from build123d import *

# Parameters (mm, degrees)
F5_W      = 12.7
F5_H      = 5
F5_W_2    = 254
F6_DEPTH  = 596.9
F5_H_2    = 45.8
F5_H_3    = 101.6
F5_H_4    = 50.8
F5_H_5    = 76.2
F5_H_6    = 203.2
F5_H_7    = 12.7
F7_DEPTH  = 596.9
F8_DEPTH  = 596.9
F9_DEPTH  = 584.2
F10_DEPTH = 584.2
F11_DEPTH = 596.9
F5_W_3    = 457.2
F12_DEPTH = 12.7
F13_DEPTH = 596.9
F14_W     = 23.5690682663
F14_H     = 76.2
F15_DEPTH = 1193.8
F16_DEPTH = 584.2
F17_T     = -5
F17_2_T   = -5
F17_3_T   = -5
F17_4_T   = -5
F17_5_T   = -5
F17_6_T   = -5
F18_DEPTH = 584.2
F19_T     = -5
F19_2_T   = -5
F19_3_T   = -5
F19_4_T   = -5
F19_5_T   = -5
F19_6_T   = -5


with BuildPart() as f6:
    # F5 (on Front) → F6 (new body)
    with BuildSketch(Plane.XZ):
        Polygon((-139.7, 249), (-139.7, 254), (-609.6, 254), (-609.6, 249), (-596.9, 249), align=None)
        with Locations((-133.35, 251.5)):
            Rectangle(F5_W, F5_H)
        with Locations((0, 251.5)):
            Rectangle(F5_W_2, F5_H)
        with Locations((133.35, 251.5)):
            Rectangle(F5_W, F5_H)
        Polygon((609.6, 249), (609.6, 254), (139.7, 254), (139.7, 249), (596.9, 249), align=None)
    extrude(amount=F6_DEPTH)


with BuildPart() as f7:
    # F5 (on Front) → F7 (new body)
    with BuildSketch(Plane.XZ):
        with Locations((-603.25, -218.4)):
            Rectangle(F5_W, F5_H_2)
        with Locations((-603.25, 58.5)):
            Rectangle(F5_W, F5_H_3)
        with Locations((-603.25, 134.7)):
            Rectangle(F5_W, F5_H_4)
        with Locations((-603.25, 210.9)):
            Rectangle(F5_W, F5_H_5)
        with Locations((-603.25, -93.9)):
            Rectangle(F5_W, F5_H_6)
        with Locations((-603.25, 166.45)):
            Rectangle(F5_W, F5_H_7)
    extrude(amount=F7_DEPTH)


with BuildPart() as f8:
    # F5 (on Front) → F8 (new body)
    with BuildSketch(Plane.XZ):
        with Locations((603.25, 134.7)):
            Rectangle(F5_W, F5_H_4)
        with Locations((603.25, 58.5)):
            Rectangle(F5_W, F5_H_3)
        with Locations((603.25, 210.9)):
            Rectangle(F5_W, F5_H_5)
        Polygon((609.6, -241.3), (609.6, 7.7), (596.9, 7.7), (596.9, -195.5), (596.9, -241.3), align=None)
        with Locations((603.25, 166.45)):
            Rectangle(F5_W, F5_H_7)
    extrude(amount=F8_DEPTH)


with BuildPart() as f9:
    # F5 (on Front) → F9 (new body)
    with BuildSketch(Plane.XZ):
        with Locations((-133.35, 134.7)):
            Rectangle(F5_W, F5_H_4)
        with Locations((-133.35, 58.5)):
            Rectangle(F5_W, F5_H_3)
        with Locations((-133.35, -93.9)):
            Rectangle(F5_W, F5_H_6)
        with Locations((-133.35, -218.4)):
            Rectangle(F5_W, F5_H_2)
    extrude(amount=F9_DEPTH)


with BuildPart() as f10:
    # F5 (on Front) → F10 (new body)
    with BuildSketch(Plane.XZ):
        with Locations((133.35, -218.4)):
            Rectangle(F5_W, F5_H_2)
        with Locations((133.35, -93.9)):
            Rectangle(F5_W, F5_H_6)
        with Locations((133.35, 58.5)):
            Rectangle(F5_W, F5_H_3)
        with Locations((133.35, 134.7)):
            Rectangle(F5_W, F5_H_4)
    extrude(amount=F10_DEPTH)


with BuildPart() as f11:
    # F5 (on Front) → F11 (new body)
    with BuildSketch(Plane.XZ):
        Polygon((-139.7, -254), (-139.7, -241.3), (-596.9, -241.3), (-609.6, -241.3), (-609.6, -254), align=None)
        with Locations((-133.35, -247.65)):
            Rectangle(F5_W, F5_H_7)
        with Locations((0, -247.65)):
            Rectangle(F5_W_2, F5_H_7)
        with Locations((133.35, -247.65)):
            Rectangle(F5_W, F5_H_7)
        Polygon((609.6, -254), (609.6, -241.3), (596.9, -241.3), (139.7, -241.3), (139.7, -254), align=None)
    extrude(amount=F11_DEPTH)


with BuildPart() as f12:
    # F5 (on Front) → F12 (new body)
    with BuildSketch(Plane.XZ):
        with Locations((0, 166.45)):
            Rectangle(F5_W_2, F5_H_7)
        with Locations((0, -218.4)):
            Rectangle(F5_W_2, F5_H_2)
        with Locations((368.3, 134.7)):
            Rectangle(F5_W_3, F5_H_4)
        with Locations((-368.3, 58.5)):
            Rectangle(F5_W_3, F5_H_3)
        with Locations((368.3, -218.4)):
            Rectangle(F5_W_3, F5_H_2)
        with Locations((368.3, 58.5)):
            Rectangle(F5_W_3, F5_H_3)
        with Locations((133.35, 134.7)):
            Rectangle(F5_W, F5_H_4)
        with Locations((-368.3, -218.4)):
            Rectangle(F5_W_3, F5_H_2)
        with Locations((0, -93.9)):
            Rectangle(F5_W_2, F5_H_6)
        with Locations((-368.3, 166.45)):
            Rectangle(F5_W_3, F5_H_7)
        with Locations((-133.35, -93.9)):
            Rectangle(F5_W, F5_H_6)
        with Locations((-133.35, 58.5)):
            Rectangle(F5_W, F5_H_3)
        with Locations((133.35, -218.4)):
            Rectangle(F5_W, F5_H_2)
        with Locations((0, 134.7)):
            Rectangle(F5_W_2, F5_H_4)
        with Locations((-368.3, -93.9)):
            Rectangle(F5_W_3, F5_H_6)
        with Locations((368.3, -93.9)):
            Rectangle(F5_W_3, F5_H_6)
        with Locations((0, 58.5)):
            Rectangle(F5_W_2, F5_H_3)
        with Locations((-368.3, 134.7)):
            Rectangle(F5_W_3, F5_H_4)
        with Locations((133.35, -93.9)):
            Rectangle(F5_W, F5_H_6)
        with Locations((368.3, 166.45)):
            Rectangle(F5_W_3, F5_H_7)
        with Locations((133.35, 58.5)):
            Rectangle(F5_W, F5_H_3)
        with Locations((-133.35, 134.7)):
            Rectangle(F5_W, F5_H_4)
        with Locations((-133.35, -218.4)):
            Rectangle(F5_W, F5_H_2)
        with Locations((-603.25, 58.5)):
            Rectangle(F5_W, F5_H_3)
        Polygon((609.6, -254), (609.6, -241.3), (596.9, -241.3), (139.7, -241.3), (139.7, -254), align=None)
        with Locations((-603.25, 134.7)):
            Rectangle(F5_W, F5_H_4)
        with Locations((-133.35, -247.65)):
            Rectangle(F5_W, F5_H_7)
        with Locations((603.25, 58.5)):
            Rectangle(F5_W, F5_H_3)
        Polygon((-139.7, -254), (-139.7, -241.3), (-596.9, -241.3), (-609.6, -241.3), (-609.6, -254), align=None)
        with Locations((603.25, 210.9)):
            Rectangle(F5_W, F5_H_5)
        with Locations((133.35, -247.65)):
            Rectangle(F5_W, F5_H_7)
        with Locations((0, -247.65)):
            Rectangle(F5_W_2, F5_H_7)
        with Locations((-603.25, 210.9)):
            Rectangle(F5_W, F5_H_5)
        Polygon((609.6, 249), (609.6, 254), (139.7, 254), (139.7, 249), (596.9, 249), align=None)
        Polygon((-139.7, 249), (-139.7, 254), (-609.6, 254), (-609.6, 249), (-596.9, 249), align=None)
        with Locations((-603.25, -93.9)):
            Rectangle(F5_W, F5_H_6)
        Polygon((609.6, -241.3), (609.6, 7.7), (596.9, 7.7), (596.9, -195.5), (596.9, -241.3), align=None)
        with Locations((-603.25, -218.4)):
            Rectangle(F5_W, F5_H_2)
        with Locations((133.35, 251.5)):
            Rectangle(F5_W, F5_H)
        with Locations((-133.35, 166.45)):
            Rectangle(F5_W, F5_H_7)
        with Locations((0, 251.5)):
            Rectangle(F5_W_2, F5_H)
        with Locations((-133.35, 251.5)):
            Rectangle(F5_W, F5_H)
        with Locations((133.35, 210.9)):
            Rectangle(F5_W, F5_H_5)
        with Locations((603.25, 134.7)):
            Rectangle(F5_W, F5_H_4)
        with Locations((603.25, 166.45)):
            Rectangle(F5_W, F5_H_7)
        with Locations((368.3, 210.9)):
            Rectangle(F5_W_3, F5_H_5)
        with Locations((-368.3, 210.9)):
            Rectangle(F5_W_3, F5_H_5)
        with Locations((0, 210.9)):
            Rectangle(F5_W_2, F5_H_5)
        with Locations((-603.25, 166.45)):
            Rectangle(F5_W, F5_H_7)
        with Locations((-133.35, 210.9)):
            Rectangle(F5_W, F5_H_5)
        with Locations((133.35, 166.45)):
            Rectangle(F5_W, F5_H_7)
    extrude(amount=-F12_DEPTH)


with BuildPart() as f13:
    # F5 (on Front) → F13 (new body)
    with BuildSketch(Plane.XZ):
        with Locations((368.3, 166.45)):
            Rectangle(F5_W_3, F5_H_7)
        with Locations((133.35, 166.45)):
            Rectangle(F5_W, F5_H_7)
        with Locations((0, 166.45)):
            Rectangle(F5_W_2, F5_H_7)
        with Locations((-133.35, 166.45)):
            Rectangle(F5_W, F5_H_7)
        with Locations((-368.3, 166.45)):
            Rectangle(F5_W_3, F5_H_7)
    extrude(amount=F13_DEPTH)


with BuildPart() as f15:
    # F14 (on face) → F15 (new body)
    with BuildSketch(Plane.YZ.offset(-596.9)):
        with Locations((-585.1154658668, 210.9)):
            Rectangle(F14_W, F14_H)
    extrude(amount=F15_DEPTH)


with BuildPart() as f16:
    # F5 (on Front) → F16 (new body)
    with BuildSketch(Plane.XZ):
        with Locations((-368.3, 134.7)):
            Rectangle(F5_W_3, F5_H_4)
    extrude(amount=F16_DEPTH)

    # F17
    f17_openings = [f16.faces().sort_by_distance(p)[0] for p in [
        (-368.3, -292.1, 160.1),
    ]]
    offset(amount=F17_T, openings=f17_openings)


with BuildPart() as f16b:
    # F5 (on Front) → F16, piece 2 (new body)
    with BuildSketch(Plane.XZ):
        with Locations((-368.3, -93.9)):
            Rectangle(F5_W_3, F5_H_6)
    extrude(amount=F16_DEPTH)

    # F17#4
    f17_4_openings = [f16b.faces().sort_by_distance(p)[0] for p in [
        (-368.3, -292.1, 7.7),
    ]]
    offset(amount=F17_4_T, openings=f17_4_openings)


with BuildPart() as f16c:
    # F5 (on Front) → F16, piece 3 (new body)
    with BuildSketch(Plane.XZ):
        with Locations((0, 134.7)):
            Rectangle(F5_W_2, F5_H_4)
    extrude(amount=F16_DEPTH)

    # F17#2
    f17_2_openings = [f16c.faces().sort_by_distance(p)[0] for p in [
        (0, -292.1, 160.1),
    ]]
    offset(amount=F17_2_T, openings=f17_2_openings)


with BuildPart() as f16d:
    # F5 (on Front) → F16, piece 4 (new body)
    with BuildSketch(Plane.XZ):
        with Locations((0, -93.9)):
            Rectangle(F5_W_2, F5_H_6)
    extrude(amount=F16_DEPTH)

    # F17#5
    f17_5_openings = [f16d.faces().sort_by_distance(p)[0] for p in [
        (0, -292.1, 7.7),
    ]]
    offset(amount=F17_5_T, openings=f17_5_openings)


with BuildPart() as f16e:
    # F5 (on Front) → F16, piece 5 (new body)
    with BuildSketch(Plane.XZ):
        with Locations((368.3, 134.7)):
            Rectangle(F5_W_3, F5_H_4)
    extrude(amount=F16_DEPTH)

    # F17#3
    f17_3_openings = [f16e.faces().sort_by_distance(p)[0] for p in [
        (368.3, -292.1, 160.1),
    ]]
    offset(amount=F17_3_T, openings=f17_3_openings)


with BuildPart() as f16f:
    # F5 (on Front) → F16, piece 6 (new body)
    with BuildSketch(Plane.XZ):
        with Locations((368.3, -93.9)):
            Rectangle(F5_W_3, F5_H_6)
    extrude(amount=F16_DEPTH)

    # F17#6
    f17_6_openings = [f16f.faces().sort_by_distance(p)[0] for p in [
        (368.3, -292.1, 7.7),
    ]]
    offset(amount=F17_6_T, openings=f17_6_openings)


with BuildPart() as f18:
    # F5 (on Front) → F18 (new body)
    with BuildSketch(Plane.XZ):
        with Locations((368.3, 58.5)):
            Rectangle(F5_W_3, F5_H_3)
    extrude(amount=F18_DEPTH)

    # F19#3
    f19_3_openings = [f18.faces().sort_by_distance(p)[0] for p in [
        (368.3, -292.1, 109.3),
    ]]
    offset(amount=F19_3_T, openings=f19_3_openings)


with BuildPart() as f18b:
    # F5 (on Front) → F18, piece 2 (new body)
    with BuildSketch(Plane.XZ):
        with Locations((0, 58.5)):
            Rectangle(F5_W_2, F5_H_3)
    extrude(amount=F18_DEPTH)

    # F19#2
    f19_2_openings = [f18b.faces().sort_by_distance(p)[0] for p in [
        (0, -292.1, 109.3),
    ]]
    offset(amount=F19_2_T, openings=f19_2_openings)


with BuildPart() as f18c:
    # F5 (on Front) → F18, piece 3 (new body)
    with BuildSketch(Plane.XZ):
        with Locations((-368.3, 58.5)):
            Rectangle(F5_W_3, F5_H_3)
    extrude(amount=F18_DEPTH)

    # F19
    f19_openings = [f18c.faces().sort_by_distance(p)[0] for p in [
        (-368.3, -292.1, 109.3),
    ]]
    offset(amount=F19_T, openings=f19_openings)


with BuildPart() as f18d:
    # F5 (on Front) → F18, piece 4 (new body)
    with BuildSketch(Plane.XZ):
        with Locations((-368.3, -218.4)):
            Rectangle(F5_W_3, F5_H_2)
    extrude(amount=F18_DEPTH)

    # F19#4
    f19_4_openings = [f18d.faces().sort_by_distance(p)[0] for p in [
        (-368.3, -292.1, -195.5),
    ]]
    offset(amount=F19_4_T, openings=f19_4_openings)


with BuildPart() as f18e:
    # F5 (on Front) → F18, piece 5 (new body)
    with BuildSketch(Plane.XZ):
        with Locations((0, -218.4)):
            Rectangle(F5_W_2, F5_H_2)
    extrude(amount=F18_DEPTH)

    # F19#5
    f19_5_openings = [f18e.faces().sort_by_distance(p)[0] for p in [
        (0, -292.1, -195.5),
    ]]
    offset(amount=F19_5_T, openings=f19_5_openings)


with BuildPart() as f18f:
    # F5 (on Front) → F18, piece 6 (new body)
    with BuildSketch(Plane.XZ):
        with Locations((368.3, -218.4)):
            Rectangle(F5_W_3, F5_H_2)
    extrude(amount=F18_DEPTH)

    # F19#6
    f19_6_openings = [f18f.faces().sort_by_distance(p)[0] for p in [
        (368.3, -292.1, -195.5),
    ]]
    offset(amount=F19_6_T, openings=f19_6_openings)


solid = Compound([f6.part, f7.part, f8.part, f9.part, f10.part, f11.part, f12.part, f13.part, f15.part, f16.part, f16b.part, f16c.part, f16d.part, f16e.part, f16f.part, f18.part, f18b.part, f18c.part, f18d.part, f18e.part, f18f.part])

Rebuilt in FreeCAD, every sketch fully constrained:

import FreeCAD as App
import Part
import Sketcher
from FreeCAD import Vector
Q = App.Units.Quantity


def faces_at(feature, points):
    """Names of the faces that lie closest to the given points."""
    faces = feature.Shape.Faces
    near = lambda p: min(range(len(faces)), key=lambda i: faces[i].distToShape(Part.Vertex(*p))[0])
    return sorted({f"Face{near(p) + 1}" for p in points})


def add_polygon(sketch, points):
    """Adds a closed chain of lines whose ends are joined by coincident constraints."""
    first, n = sketch.GeometryCount, len(points)
    for a, b in zip(points, points[1:] + points[:1]):
        sketch.addGeometry(Part.LineSegment(App.Vector(*a, 0), App.Vector(*b, 0)), False)
    for i in range(n):
        sketch.addConstraint(Sketcher.Constraint("Coincident", first + i, 2, first + (i + 1) % n, 1))

doc = App.newDocument("Part")
body = doc.addObject("PartDesign::Body", "Body")

sketch1 = body.newObject("Sketcher::SketchObject", "Sketch")
sketch1.AttachmentSupport = (doc.getObject("XZ_Plane"), [""])
sketch1.MapMode = "FlatFace"
add_polygon(sketch1, [(-610, 254), (-610, 249), (610, 249), (610, 254)])
sketch1.addConstraint([
    Sketcher.Constraint("Vertical", 0),
    Sketcher.Constraint("Horizontal", 1),
    Sketcher.Constraint("Vertical", 2),
    Sketcher.Constraint("Horizontal", 3),
    Sketcher.Constraint("DistanceX", 1, 1, 1, 2, Q("48 in")),
    Sketcher.Constraint("DistanceX", 0, 2, -1, 1, Q("24 in")),
    Sketcher.Constraint("DistanceY", -1, 1, 2, 2, Q("10 in")),
    Sketcher.Constraint("DistanceY", 0, 2, 0, 1, 5.0),
])
pad1 = body.newObject("PartDesign::Pad", "Pad")
pad1.Profile = sketch1
pad1.Length = Q("23.5 in")
body2 = doc.addObject("PartDesign::Body", "Body001")

sketch2 = body2.newObject("Sketcher::SketchObject", "Sketch001")
sketch2.AttachmentSupport = (doc.getObject("XZ_Plane001"), [""])
sketch2.MapMode = "FlatFace"
add_polygon(sketch2, [(-610, -241), (-597, -241), (-597, 249), (-610, 249)])
sketch2.addConstraint([
    Sketcher.Constraint("Horizontal", 0),
    Sketcher.Constraint("Vertical", 1),
    Sketcher.Constraint("Horizontal", 2),
    Sketcher.Constraint("Vertical", 3),
    Sketcher.Constraint("DistanceX", 0, 1, 0, 2, Q("0.5 in")),
    Sketcher.Constraint("DistanceX", 2, 2, -1, 1, Q("24 in")),
    Sketcher.Constraint("DistanceY", 0, 2, -1, 1, Q("9.5 in")),
    Sketcher.Constraint("DistanceY", 1, 1, 1, 2, 490.3),
])
pad2 = body2.newObject("PartDesign::Pad", "Pad001")
pad2.Profile = sketch2
pad2.Length = Q("23.5 in")
body3 = doc.addObject("PartDesign::Body", "Body002")

sketch3 = body3.newObject("Sketcher::SketchObject", "Sketch002")
sketch3.AttachmentSupport = (doc.getObject("XZ_Plane002"), [""])
sketch3.MapMode = "FlatFace"
add_polygon(sketch3, [(597, -241), (610, -241), (610, 249), (597, 249)])
sketch3.addConstraint([
    Sketcher.Constraint("Horizontal", 0),
    Sketcher.Constraint("Vertical", 1),
    Sketcher.Constraint("Horizontal", 2),
    Sketcher.Constraint("Vertical", 3),
    Sketcher.Constraint("DistanceX", 0, 1, 0, 2, Q("0.5 in")),
    Sketcher.Constraint("DistanceX", -1, 1, 0, 2, Q("24 in")),
    Sketcher.Constraint("DistanceY", 0, 2, -1, 1, Q("9.5 in")),
    Sketcher.Constraint("DistanceY", 1, 1, 1, 2, 490.3),
])
pad3 = body3.newObject("PartDesign::Pad", "Pad002")
pad3.Profile = sketch3
pad3.Length = Q("23.5 in")
body4 = doc.addObject("PartDesign::Body", "Body003")

sketch4 = body4.newObject("Sketcher::SketchObject", "Sketch003")
sketch4.AttachmentSupport = (doc.getObject("XZ_Plane003"), [""])
sketch4.MapMode = "FlatFace"
add_polygon(sketch4, [(-140, 160), (-140, -241), (-127, -241), (-127, 160)])
sketch4.addConstraint([
    Sketcher.Constraint("Vertical", 0),
    Sketcher.Constraint("Horizontal", 1),
    Sketcher.Constraint("Vertical", 2),
    Sketcher.Constraint("Horizontal", 3),
    Sketcher.Constraint("DistanceX", 1, 1, 1, 2, Q("0.5 in")),
    Sketcher.Constraint("DistanceX", 1, 2, -1, 1, Q("5 in")),
    Sketcher.Constraint("DistanceY", 0, 2, -1, 1, Q("9.5 in")),
    Sketcher.Constraint("DistanceY", 0, 2, 0, 1, 401.4),
])
pad4 = body4.newObject("PartDesign::Pad", "Pad003")
pad4.Profile = sketch4
pad4.Length = Q("23 in")
body5 = doc.addObject("PartDesign::Body", "Body004")

sketch5 = body5.newObject("Sketcher::SketchObject", "Sketch004")
sketch5.AttachmentSupport = (doc.getObject("XZ_Plane004"), [""])
sketch5.MapMode = "FlatFace"
add_polygon(sketch5, [(127, -241), (140, -241), (140, 160), (127, 160)])
sketch5.addConstraint([
    Sketcher.Constraint("Horizontal", 0),
    Sketcher.Constraint("Vertical", 1),
    Sketcher.Constraint("Horizontal", 2),
    Sketcher.Constraint("Vertical", 3),
    Sketcher.Constraint("DistanceX", 0, 1, 0, 2, Q("0.5 in")),
    Sketcher.Constraint("DistanceX", -1, 1, 2, 2, Q("5 in")),
    Sketcher.Constraint("DistanceY", 0, 2, -1, 1, Q("9.5 in")),
    Sketcher.Constraint("DistanceY", 1, 1, 1, 2, 401.4),
])
pad5 = body5.newObject("PartDesign::Pad", "Pad004")
pad5.Profile = sketch5
pad5.Length = Q("23 in")
body6 = doc.addObject("PartDesign::Body", "Body005")

sketch6 = body6.newObject("Sketcher::SketchObject", "Sketch005")
sketch6.AttachmentSupport = (doc.getObject("XZ_Plane005"), [""])
sketch6.MapMode = "FlatFace"
add_polygon(sketch6, [(-610, -241), (-610, -254), (610, -254), (610, -241)])
sketch6.addConstraint([
    Sketcher.Constraint("Vertical", 0),
    Sketcher.Constraint("Horizontal", 1),
    Sketcher.Constraint("Vertical", 2),
    Sketcher.Constraint("Horizontal", 3),
    Sketcher.Constraint("DistanceX", 1, 1, 1, 2, Q("48 in")),
    Sketcher.Constraint("DistanceY", 0, 2, 0, 1, Q("0.5 in")),
    Sketcher.Constraint("DistanceX", 0, 2, -1, 1, Q("24 in")),
    Sketcher.Constraint("DistanceY", 0, 2, -1, 1, Q("10 in")),
])
pad6 = body6.newObject("PartDesign::Pad", "Pad005")
pad6.Profile = sketch6
pad6.Length = Q("23.5 in")
body7 = doc.addObject("PartDesign::Body", "Body006")

sketch7 = body7.newObject("Sketcher::SketchObject", "Sketch006")
sketch7.AttachmentSupport = (doc.getObject("XZ_Plane006"), [""])
sketch7.MapMode = "FlatFace"
add_polygon(sketch7, [(-610, -254), (610, -254), (610, 254), (-610, 254)])
sketch7.addConstraint([
    Sketcher.Constraint("Horizontal", 0),
    Sketcher.Constraint("Vertical", 1),
    Sketcher.Constraint("Horizontal", 2),
    Sketcher.Constraint("Vertical", 3),
    Sketcher.Constraint("Symmetric", 0, 2, 2, 2, -1, 1),
    Sketcher.Constraint("DistanceX", 0, 1, 0, 2, Q("48 in")),
    Sketcher.Constraint("DistanceY", 1, 1, 1, 2, Q("20 in")),
])
pad7 = body7.newObject("PartDesign::Pad", "Pad006")
pad7.Profile = sketch7
pad7.Length = Q("0.5 in")
pad7.Reversed = True
body8 = doc.addObject("PartDesign::Body", "Body007")

sketch8 = body8.newObject("Sketcher::SketchObject", "Sketch007")
sketch8.AttachmentSupport = (doc.getObject("XZ_Plane007"), [""])
sketch8.MapMode = "FlatFace"
add_polygon(sketch8, [(597, 160), (597, 173), (-597, 173), (-597, 160)])
sketch8.addConstraint([
    Sketcher.Constraint("Vertical", 0),
    Sketcher.Constraint("Horizontal", 1),
    Sketcher.Constraint("Vertical", 2),
    Sketcher.Constraint("Horizontal", 3),
    Sketcher.Constraint("DistanceX", 1, 2, 1, 1, Q("47 in")),
    Sketcher.Constraint("DistanceY", 0, 1, 0, 2, Q("0.5 in")),
    Sketcher.Constraint("DistanceX", -1, 1, 0, 2, Q("23.5 in")),
    Sketcher.Constraint("DistanceY", -1, 1, 0, 2, 172.8),
])
pad8 = body8.newObject("PartDesign::Pad", "Pad007")
pad8.Profile = sketch8
pad8.Length = Q("23.5 in")
body9 = doc.addObject("PartDesign::Body", "Body008")

sketch9 = body9.newObject("Sketcher::SketchObject", "Sketch008")
sketch9.AttachmentSupport = (doc.getObject("YZ_Plane008"), [""])
sketch9.MapMode = "FlatFace"
sketch9.AttachmentOffset = App.Placement(Vector(0, 0, -23.5 * 25.4), App.Rotation())
add_polygon(sketch9, [(-597, 249), (-597, 173), (-573, 173), (-573, 249)])
sketch9.addConstraint([
    Sketcher.Constraint("Vertical", 0),
    Sketcher.Constraint("Horizontal", 1),
    Sketcher.Constraint("Vertical", 2),
    Sketcher.Constraint("Horizontal", 3),
    Sketcher.Constraint("DistanceY", 0, 2, 0, 1, Q("3 in")),
    Sketcher.Constraint("DistanceX", 0, 2, -1, 1, Q("23.5 in")),
    Sketcher.Constraint("DistanceX", 1, 1, 1, 2, 23.569068),
    Sketcher.Constraint("DistanceY", -1, 1, 0, 2, 172.8),
])
pad9 = body9.newObject("PartDesign::Pad", "Pad008")
pad9.Profile = sketch9
pad9.Length = Q("47 in")
body10 = doc.addObject("PartDesign::Body", "Body009")

sketch10 = body10.newObject("Sketcher::SketchObject", "Sketch009")
sketch10.AttachmentSupport = (doc.getObject("XZ_Plane009"), [""])
sketch10.MapMode = "FlatFace"
add_polygon(sketch10, [(-597, 160), (-597, 109), (-140, 109), (-140, 160)])
sketch10.addConstraint([
    Sketcher.Constraint("Vertical", 0),
    Sketcher.Constraint("Horizontal", 1),
    Sketcher.Constraint("Vertical", 2),
    Sketcher.Constraint("Horizontal", 3),
    Sketcher.Constraint("DistanceX", 1, 1, 1, 2, Q("18 in")),
    Sketcher.Constraint("DistanceY", 0, 2, 0, 1, Q("2 in")),
    Sketcher.Constraint("DistanceX", 0, 2, -1, 1, Q("23.5 in")),
    Sketcher.Constraint("DistanceY", -1, 1, 0, 2, 109.3),
])
pad10 = body10.newObject("PartDesign::Pad", "Pad009")
pad10.Profile = sketch10
pad10.Length = Q("23 in")
doc.recompute()

thickness = body10.newObject("PartDesign::Thickness", "Thickness")
thickness.Base = (pad10, faces_at(pad10, [(-368.3, -292.1, 160.1)]))
thickness.Value = 5
thickness.Reversed = True
thickness.Join = "Arc"
body11 = doc.addObject("PartDesign::Body", "Body010")

sketch11 = body11.newObject("Sketcher::SketchObject", "Sketch010")
sketch11.AttachmentSupport = (doc.getObject("XZ_Plane010"), [""])
sketch11.MapMode = "FlatFace"
add_polygon(sketch11, [(-597, 8), (-597, -196), (-140, -196), (-140, 8)])
sketch11.addConstraint([
    Sketcher.Constraint("Vertical", 0),
    Sketcher.Constraint("Horizontal", 1),
    Sketcher.Constraint("Vertical", 2),
    Sketcher.Constraint("Horizontal", 3),
    Sketcher.Constraint("DistanceX", 1, 1, 1, 2, Q("18 in")),
    Sketcher.Constraint("DistanceY", 0, 2, 0, 1, Q("8 in")),
    Sketcher.Constraint("DistanceX", 0, 2, -1, 1, Q("23.5 in")),
    Sketcher.Constraint("DistanceY", 0, 2, -1, 1, 195.5),
])
pad11 = body11.newObject("PartDesign::Pad", "Pad010")
pad11.Profile = sketch11
pad11.Length = Q("23 in")
doc.recompute()

thickness2 = body11.newObject("PartDesign::Thickness", "Thickness001")
thickness2.Base = (pad11, faces_at(pad11, [(-368.3, -292.1, 7.7)]))
thickness2.Value = 5
thickness2.Reversed = True
thickness2.Join = "Arc"
body12 = doc.addObject("PartDesign::Body", "Body011")

sketch12 = body12.newObject("Sketcher::SketchObject", "Sketch011")
sketch12.AttachmentSupport = (doc.getObject("XZ_Plane011"), [""])
sketch12.MapMode = "FlatFace"
add_polygon(sketch12, [(-127, 160), (-127, 109), (127, 109), (127, 160)])
sketch12.addConstraint([
    Sketcher.Constraint("Vertical", 0),
    Sketcher.Constraint("Horizontal", 1),
    Sketcher.Constraint("Vertical", 2),
    Sketcher.Constraint("Horizontal", 3),
    Sketcher.Constraint("DistanceX", 1, 1, 1, 2, Q("10 in")),
    Sketcher.Constraint("DistanceY", 0, 2, 0, 1, Q("2 in")),
    Sketcher.Constraint("DistanceX", 0, 2, -1, 1, Q("5 in")),
    Sketcher.Constraint("DistanceY", -1, 1, 0, 2, 109.3),
])
pad12 = body12.newObject("PartDesign::Pad", "Pad011")
pad12.Profile = sketch12
pad12.Length = Q("23 in")
doc.recompute()

thickness3 = body12.newObject("PartDesign::Thickness", "Thickness002")
thickness3.Base = (pad12, faces_at(pad12, [(0, -292.1, 160.1)]))
thickness3.Value = 5
thickness3.Reversed = True
thickness3.Join = "Arc"
body13 = doc.addObject("PartDesign::Body", "Body012")

sketch13 = body13.newObject("Sketcher::SketchObject", "Sketch012")
sketch13.AttachmentSupport = (doc.getObject("XZ_Plane012"), [""])
sketch13.MapMode = "FlatFace"
add_polygon(sketch13, [(-127, 8), (-127, -196), (127, -196), (127, 8)])
sketch13.addConstraint([
    Sketcher.Constraint("Vertical", 0),
    Sketcher.Constraint("Horizontal", 1),
    Sketcher.Constraint("Vertical", 2),
    Sketcher.Constraint("Horizontal", 3),
    Sketcher.Constraint("DistanceX", 1, 1, 1, 2, Q("10 in")),
    Sketcher.Constraint("DistanceY", 0, 2, 0, 1, Q("8 in")),
    Sketcher.Constraint("DistanceX", 0, 2, -1, 1, Q("5 in")),
    Sketcher.Constraint("DistanceY", 0, 2, -1, 1, 195.5),
])
pad13 = body13.newObject("PartDesign::Pad", "Pad012")
pad13.Profile = sketch13
pad13.Length = Q("23 in")
doc.recompute()

thickness4 = body13.newObject("PartDesign::Thickness", "Thickness003")
thickness4.Base = (pad13, faces_at(pad13, [(0, -292.1, 7.7)]))
thickness4.Value = 5
thickness4.Reversed = True
thickness4.Join = "Arc"
body14 = doc.addObject("PartDesign::Body", "Body013")

sketch14 = body14.newObject("Sketcher::SketchObject", "Sketch013")
sketch14.AttachmentSupport = (doc.getObject("XZ_Plane013"), [""])
sketch14.MapMode = "FlatFace"
add_polygon(sketch14, [(140, 160), (140, 109), (597, 109), (597, 160)])
sketch14.addConstraint([
    Sketcher.Constraint("Vertical", 0),
    Sketcher.Constraint("Horizontal", 1),
    Sketcher.Constraint("Vertical", 2),
    Sketcher.Constraint("Horizontal", 3),
    Sketcher.Constraint("DistanceX", 1, 1, 1, 2, Q("18 in")),
    Sketcher.Constraint("DistanceY", 0, 2, 0, 1, Q("2 in")),
    Sketcher.Constraint("DistanceX", -1, 1, 0, 2, Q("5.5 in")),
    Sketcher.Constraint("DistanceY", -1, 1, 0, 2, 109.3),
])
pad14 = body14.newObject("PartDesign::Pad", "Pad013")
pad14.Profile = sketch14
pad14.Length = Q("23 in")
doc.recompute()

thickness5 = body14.newObject("PartDesign::Thickness", "Thickness004")
thickness5.Base = (pad14, faces_at(pad14, [(368.3, -292.1, 160.1)]))
thickness5.Value = 5
thickness5.Reversed = True
thickness5.Join = "Arc"
body15 = doc.addObject("PartDesign::Body", "Body014")

sketch15 = body15.newObject("Sketcher::SketchObject", "Sketch014")
sketch15.AttachmentSupport = (doc.getObject("XZ_Plane014"), [""])
sketch15.MapMode = "FlatFace"
add_polygon(sketch15, [(140, 8), (140, -196), (597, -196), (597, 8)])
sketch15.addConstraint([
    Sketcher.Constraint("Vertical", 0),
    Sketcher.Constraint("Horizontal", 1),
    Sketcher.Constraint("Vertical", 2),
    Sketcher.Constraint("Horizontal", 3),
    Sketcher.Constraint("DistanceX", 1, 1, 1, 2, Q("18 in")),
    Sketcher.Constraint("DistanceY", 0, 2, 0, 1, Q("8 in")),
    Sketcher.Constraint("DistanceX", -1, 1, 0, 2, Q("5.5 in")),
    Sketcher.Constraint("DistanceY", 0, 2, -1, 1, 195.5),
])
pad15 = body15.newObject("PartDesign::Pad", "Pad014")
pad15.Profile = sketch15
pad15.Length = Q("23 in")
doc.recompute()

thickness6 = body15.newObject("PartDesign::Thickness", "Thickness005")
thickness6.Base = (pad15, faces_at(pad15, [(368.3, -292.1, 7.7)]))
thickness6.Value = 5
thickness6.Reversed = True
thickness6.Join = "Arc"
body16 = doc.addObject("PartDesign::Body", "Body015")

sketch16 = body16.newObject("Sketcher::SketchObject", "Sketch015")
sketch16.AttachmentSupport = (doc.getObject("XZ_Plane015"), [""])
sketch16.MapMode = "FlatFace"
add_polygon(sketch16, [(140, 109), (140, 8), (597, 8), (597, 109)])
sketch16.addConstraint([
    Sketcher.Constraint("Vertical", 0),
    Sketcher.Constraint("Horizontal", 1),
    Sketcher.Constraint("Vertical", 2),
    Sketcher.Constraint("Horizontal", 3),
    Sketcher.Constraint("DistanceX", 1, 1, 1, 2, Q("18 in")),
    Sketcher.Constraint("DistanceY", 0, 2, 0, 1, Q("4 in")),
    Sketcher.Constraint("DistanceX", -1, 1, 0, 2, Q("5.5 in")),
    Sketcher.Constraint("DistanceY", -1, 1, 0, 2, 7.7),
])
pad16 = body16.newObject("PartDesign::Pad", "Pad015")
pad16.Profile = sketch16
pad16.Length = Q("23 in")
doc.recompute()

thickness7 = body16.newObject("PartDesign::Thickness", "Thickness006")
thickness7.Base = (pad16, faces_at(pad16, [(368.3, -292.1, 109.3)]))
thickness7.Value = 5
thickness7.Reversed = True
thickness7.Join = "Arc"
body17 = doc.addObject("PartDesign::Body", "Body016")

sketch17 = body17.newObject("Sketcher::SketchObject", "Sketch016")
sketch17.AttachmentSupport = (doc.getObject("XZ_Plane016"), [""])
sketch17.MapMode = "FlatFace"
add_polygon(sketch17, [(-127, 109), (-127, 8), (127, 8), (127, 109)])
sketch17.addConstraint([
    Sketcher.Constraint("Vertical", 0),
    Sketcher.Constraint("Horizontal", 1),
    Sketcher.Constraint("Vertical", 2),
    Sketcher.Constraint("Horizontal", 3),
    Sketcher.Constraint("DistanceX", 1, 1, 1, 2, Q("10 in")),
    Sketcher.Constraint("DistanceY", 0, 2, 0, 1, Q("4 in")),
    Sketcher.Constraint("DistanceX", 0, 2, -1, 1, Q("5 in")),
    Sketcher.Constraint("DistanceY", -1, 1, 0, 2, 7.7),
])
pad17 = body17.newObject("PartDesign::Pad", "Pad016")
pad17.Profile = sketch17
pad17.Length = Q("23 in")
doc.recompute()

thickness8 = body17.newObject("PartDesign::Thickness", "Thickness007")
thickness8.Base = (pad17, faces_at(pad17, [(0, -292.1, 109.3)]))
thickness8.Value = 5
thickness8.Reversed = True
thickness8.Join = "Arc"
body18 = doc.addObject("PartDesign::Body", "Body017")

sketch18 = body18.newObject("Sketcher::SketchObject", "Sketch017")
sketch18.AttachmentSupport = (doc.getObject("XZ_Plane017"), [""])
sketch18.MapMode = "FlatFace"
add_polygon(sketch18, [(-597, 109), (-597, 8), (-140, 8), (-140, 109)])
sketch18.addConstraint([
    Sketcher.Constraint("Vertical", 0),
    Sketcher.Constraint("Horizontal", 1),
    Sketcher.Constraint("Vertical", 2),
    Sketcher.Constraint("Horizontal", 3),
    Sketcher.Constraint("DistanceX", 1, 1, 1, 2, Q("18 in")),
    Sketcher.Constraint("DistanceY", 0, 2, 0, 1, Q("4 in")),
    Sketcher.Constraint("DistanceX", 0, 2, -1, 1, Q("23.5 in")),
    Sketcher.Constraint("DistanceY", -1, 1, 0, 2, 7.7),
])
pad18 = body18.newObject("PartDesign::Pad", "Pad017")
pad18.Profile = sketch18
pad18.Length = Q("23 in")
doc.recompute()

thickness9 = body18.newObject("PartDesign::Thickness", "Thickness008")
thickness9.Base = (pad18, faces_at(pad18, [(-368.3, -292.1, 109.3)]))
thickness9.Value = 5
thickness9.Reversed = True
thickness9.Join = "Arc"
body19 = doc.addObject("PartDesign::Body", "Body018")

sketch19 = body19.newObject("Sketcher::SketchObject", "Sketch018")
sketch19.AttachmentSupport = (doc.getObject("XZ_Plane018"), [""])
sketch19.MapMode = "FlatFace"
add_polygon(sketch19, [(-597, -196), (-597, -241), (-140, -241), (-140, -196)])
sketch19.addConstraint([
    Sketcher.Constraint("Vertical", 0),
    Sketcher.Constraint("Horizontal", 1),
    Sketcher.Constraint("Vertical", 2),
    Sketcher.Constraint("Horizontal", 3),
    Sketcher.Constraint("DistanceX", 1, 1, 1, 2, Q("18 in")),
    Sketcher.Constraint("DistanceX", 0, 2, -1, 1, Q("23.5 in")),
    Sketcher.Constraint("DistanceY", 0, 2, -1, 1, Q("9.5 in")),
    Sketcher.Constraint("DistanceY", 0, 2, 0, 1, 45.8),
])
pad19 = body19.newObject("PartDesign::Pad", "Pad018")
pad19.Profile = sketch19
pad19.Length = Q("23 in")
doc.recompute()

thickness10 = body19.newObject("PartDesign::Thickness", "Thickness009")
thickness10.Base = (pad19, faces_at(pad19, [(-368.3, -292.1, -195.5)]))
thickness10.Value = 5
thickness10.Reversed = True
thickness10.Join = "Arc"
body20 = doc.addObject("PartDesign::Body", "Body019")

sketch20 = body20.newObject("Sketcher::SketchObject", "Sketch019")
sketch20.AttachmentSupport = (doc.getObject("XZ_Plane019"), [""])
sketch20.MapMode = "FlatFace"
add_polygon(sketch20, [(-127, -196), (-127, -241), (127, -241), (127, -196)])
sketch20.addConstraint([
    Sketcher.Constraint("Vertical", 0),
    Sketcher.Constraint("Horizontal", 1),
    Sketcher.Constraint("Vertical", 2),
    Sketcher.Constraint("Horizontal", 3),
    Sketcher.Constraint("DistanceX", 1, 1, 1, 2, Q("10 in")),
    Sketcher.Constraint("DistanceX", 0, 2, -1, 1, Q("5 in")),
    Sketcher.Constraint("DistanceY", 0, 2, -1, 1, Q("9.5 in")),
    Sketcher.Constraint("DistanceY", 0, 2, 0, 1, 45.8),
])
pad20 = body20.newObject("PartDesign::Pad", "Pad019")
pad20.Profile = sketch20
pad20.Length = Q("23 in")
doc.recompute()

thickness11 = body20.newObject("PartDesign::Thickness", "Thickness010")
thickness11.Base = (pad20, faces_at(pad20, [(0, -292.1, -195.5)]))
thickness11.Value = 5
thickness11.Reversed = True
thickness11.Join = "Arc"
body21 = doc.addObject("PartDesign::Body", "Body020")

sketch21 = body21.newObject("Sketcher::SketchObject", "Sketch020")
sketch21.AttachmentSupport = (doc.getObject("XZ_Plane020"), [""])
sketch21.MapMode = "FlatFace"
add_polygon(sketch21, [(140, -196), (140, -241), (597, -241), (597, -196)])
sketch21.addConstraint([
    Sketcher.Constraint("Vertical", 0),
    Sketcher.Constraint("Horizontal", 1),
    Sketcher.Constraint("Vertical", 2),
    Sketcher.Constraint("Horizontal", 3),
    Sketcher.Constraint("DistanceX", 1, 1, 1, 2, Q("18 in")),
    Sketcher.Constraint("DistanceX", -1, 1, 0, 2, Q("5.5 in")),
    Sketcher.Constraint("DistanceY", 0, 2, -1, 1, Q("9.5 in")),
    Sketcher.Constraint("DistanceY", 0, 2, 0, 1, 45.8),
])
pad21 = body21.newObject("PartDesign::Pad", "Pad020")
pad21.Profile = sketch21
pad21.Length = Q("23 in")
doc.recompute()

thickness12 = body21.newObject("PartDesign::Thickness", "Thickness011")
thickness12.Base = (pad21, faces_at(pad21, [(368.3, -292.1, -195.5)]))
thickness12.Value = 5
thickness12.Reversed = True
thickness12.Join = "Arc"

doc.recompute()
